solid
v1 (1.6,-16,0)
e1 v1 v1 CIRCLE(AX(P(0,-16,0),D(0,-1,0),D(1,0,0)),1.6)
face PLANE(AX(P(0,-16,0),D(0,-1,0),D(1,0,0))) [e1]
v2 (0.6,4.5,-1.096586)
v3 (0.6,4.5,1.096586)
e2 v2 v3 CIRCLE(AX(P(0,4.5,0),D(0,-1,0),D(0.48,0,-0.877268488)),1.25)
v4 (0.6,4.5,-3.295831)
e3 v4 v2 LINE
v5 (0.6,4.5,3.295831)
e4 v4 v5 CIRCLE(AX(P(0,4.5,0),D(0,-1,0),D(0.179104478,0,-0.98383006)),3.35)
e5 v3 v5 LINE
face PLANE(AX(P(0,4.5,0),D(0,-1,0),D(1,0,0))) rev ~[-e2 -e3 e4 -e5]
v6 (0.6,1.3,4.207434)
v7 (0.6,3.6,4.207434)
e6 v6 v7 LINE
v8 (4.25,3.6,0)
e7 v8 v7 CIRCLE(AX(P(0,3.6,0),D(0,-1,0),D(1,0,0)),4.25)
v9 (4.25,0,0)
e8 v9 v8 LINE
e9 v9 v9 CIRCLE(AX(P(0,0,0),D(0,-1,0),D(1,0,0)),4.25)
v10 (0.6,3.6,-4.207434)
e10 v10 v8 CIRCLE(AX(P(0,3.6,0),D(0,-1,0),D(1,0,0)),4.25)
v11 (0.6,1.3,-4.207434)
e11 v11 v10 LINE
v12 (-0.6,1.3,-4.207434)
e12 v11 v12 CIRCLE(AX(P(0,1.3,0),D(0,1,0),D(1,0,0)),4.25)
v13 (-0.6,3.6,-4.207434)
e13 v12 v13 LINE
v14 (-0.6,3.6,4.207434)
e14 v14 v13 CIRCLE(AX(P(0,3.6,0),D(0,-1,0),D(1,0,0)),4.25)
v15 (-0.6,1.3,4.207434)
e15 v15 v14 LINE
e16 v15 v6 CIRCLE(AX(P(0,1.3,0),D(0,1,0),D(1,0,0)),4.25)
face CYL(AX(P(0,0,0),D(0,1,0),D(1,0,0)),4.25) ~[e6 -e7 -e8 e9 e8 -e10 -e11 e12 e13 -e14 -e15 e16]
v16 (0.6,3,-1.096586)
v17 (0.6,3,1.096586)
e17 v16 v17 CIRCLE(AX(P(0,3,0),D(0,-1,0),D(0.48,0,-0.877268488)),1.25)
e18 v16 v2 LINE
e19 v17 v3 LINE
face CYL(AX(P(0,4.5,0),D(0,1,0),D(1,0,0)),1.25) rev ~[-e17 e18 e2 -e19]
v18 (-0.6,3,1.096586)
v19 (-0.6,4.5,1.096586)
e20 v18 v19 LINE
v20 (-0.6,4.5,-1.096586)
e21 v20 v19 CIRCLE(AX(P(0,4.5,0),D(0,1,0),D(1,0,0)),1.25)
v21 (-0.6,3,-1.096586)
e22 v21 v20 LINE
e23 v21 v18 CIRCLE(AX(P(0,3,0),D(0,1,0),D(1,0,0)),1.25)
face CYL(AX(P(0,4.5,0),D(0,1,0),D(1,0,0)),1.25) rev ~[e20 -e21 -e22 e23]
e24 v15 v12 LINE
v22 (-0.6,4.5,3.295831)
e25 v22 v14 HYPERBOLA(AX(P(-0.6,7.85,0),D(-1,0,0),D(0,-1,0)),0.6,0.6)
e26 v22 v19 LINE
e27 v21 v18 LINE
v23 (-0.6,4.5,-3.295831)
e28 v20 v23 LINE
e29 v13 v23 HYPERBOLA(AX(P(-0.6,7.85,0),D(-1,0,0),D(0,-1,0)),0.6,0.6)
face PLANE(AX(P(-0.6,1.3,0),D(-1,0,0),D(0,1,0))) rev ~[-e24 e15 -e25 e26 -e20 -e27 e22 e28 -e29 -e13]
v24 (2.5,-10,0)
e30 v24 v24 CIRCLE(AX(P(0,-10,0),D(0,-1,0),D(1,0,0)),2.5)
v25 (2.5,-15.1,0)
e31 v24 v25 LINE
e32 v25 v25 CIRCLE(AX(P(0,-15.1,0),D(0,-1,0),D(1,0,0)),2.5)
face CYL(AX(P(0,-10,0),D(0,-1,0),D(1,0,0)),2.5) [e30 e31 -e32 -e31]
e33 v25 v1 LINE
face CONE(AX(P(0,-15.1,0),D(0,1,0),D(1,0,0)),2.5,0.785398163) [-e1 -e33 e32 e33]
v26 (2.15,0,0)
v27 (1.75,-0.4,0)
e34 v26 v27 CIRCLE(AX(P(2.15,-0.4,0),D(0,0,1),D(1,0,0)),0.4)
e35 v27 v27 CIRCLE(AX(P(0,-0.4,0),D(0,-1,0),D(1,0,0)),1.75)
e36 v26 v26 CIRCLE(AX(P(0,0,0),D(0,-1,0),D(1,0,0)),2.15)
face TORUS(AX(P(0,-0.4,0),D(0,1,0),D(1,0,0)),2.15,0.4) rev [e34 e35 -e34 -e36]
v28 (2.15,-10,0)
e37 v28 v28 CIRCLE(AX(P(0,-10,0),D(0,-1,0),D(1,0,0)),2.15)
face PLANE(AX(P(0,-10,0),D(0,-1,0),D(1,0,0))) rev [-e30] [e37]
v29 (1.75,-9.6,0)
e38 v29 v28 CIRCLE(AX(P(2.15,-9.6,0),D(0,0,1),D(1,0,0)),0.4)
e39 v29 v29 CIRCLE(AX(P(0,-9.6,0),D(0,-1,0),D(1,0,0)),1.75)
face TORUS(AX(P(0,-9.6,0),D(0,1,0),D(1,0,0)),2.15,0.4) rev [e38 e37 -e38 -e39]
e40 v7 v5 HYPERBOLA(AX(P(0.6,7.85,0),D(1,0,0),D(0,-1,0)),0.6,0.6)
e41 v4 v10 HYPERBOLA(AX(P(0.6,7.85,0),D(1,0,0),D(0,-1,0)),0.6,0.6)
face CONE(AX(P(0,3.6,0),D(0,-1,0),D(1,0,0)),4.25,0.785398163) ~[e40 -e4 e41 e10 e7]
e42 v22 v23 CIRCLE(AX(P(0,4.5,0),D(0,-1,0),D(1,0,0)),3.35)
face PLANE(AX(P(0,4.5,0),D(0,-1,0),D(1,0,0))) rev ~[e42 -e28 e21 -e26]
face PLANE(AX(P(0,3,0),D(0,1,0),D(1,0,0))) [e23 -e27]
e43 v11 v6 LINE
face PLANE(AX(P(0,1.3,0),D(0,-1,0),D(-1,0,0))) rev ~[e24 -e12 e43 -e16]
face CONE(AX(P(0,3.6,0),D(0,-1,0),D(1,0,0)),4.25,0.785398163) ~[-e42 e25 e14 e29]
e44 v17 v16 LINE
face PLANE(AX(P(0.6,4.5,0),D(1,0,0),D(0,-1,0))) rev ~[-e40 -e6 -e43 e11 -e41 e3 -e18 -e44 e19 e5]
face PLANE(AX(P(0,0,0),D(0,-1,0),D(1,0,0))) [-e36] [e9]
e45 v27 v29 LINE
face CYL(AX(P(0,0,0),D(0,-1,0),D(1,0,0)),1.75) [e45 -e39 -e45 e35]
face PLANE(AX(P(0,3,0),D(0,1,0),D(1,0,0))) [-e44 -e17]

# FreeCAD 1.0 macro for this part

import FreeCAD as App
import Part
import Sketcher
from FreeCAD import Vector


def edges_at(feature, points):
    """Names of the edges that pass closest to the given points."""
    edges = feature.Shape.Edges
    near = lambda p: min(range(len(edges)), key=lambda i: edges[i].distToShape(Part.Vertex(*p))[0])
    return sorted({f"Edge{near(p) + 1}" for p in points})


def add_polygon(sketch, points):
    """Adds a closed chain of lines whose ends are joined by coincident constraints."""
    first, n = sketch.GeometryCount, len(points)
    for a, b in zip(points, points[1:] + points[:1]):
        sketch.addGeometry(Part.LineSegment(App.Vector(*a, 0), App.Vector(*b, 0)), False)
    for i in range(n):
        sketch.addConstraint(Sketcher.Constraint("Coincident", first + i, 2, first + (i + 1) % n, 1))

doc = App.newDocument("Part")
body = doc.addObject("PartDesign::Body", "Body")

# Sketch on XY plane
sketch1 = body.newObject("Sketcher::SketchObject", "Sketch")
sketch1.AttachmentSupport = (doc.getObject("XY_Plane"), [""])
sketch1.MapMode = "FlatFace"
add_polygon(sketch1, [(1.8, 0), (4.2, 0), (4.2, 4.5), (0, 4.5), (0, -16), (2.5, -16), (2.5, -10), (1.8, -10)])  # lines 0-7
sketch1.addConstraint(Sketcher.Constraint("Horizontal", 0))
sketch1.addConstraint(Sketcher.Constraint("Vertical", 1))
sketch1.addConstraint(Sketcher.Constraint("Horizontal", 2))
sketch1.addConstraint(Sketcher.Constraint("Vertical", 3))
sketch1.addConstraint(Sketcher.Constraint("Horizontal", 4))
sketch1.addConstraint(Sketcher.Constraint("Vertical", 5))
sketch1.addConstraint(Sketcher.Constraint("Horizontal", 6))
sketch1.addConstraint(Sketcher.Constraint("Vertical", 7))
sketch1.addConstraint(Sketcher.Constraint("PointOnObject", 0, 2, -1))
sketch1.addConstraint(Sketcher.Constraint("PointOnObject", 2, 2, -2))
sketch1.addConstraint(Sketcher.Constraint("Equal", 0, 4))
sketch1.addConstraint(Sketcher.Constraint("DistanceY", 5, 1, 5, 2, 6.0))
sketch1.addConstraint(Sketcher.Constraint("DistanceY", 1, 1, 1, 2, 4.5))
sketch1.addConstraint(Sketcher.Constraint("DistanceY", 3, 2, -1, 1, 16.0))
sketch1.addConstraint(Sketcher.Constraint("DistanceX", 0, 1, 0, 2, 2.5))
sketch1.addConstraint(Sketcher.Constraint("DistanceX", 2, 2, 2, 1, 4.25))
revolution = body.newObject("PartDesign::Revolution", "Revolution")
revolution.Profile = sketch1
revolution.ReferenceAxis = (sketch1, ["V_Axis"])
revolution.Angle = 360

# Sketch on XZ plane
sketch2 = body.newObject("Sketcher::SketchObject", "Sketch001")
sketch2.AttachmentSupport = (doc.getObject("XZ_Plane"), [""])
sketch2.MapMode = "FlatFace"
sketch2.AttachmentOffset = App.Placement(Vector(0, 0, -4.5), App.Rotation())
sketch2.addGeometry(Part.Circle(Vector(0, 0, 0), Vector(0, 0, 1), 1.2), False)
sketch2.addConstraint(Sketcher.Constraint("Coincident", 0, 3, -1, 1))
sketch2.addConstraint(Sketcher.Constraint("Diameter", 0, 2.5))
pocket1 = body.newObject("PartDesign::Pocket", "Pocket")
pocket1.Profile = sketch2
pocket1.Length = 1.5
pocket1.Reversed = True
doc.recompute()

chamfer = body.newObject("PartDesign::Chamfer", "Chamfer")
chamfer.Base = (pocket1, edges_at(pocket1, [(-4.25, 4.5, 0)]))
chamfer.Size = 0.9

# Sketch on XY plane
sketch3 = body.newObject("Sketcher::SketchObject", "Sketch002")
sketch3.AttachmentSupport = (doc.getObject("XY_Plane"), [""])
sketch3.MapMode = "FlatFace"
add_polygon(sketch3, [(-0.6, 1.3), (0.6, 1.3), (0.6, 4.5), (-0.6, 4.5)])  # lines 0-3
sketch3.addConstraint(Sketcher.Constraint("Horizontal", 0))
sketch3.addConstraint(Sketcher.Constraint("Vertical", 1))
sketch3.addConstraint(Sketcher.Constraint("Horizontal", 2))
sketch3.addConstraint(Sketcher.Constraint("Vertical", 3))
sketch3.addConstraint(Sketcher.Constraint("DistanceX", 0, 1, 0, 2, 1.2))
sketch3.addConstraint(Sketcher.Constraint("DistanceY", -1, 1, 0, 2, 1.3))
sketch3.addConstraint(Sketcher.Constraint("DistanceY", 1, 1, 1, 2, 3.2))
sketch3.addConstraint(Sketcher.Constraint("DistanceX", -1, 1, 0, 2, 0.6))
pocket2 = body.newObject("PartDesign::Pocket", "Pocket001")
pocket2.Profile = sketch3
pocket2.Type = "ThroughAll"
pocket2.Midplane = True
doc.recompute()

fillet = body.newObject("PartDesign::Fillet", "Fillet")
fillet.Base = (pocket2, edges_at(pocket2, [(-1.75, 0, 0), (-1.75, -10, 0)]))
fillet.Radius = 0.4
doc.recompute()

chamfer2 = body.newObject("PartDesign::Chamfer", "Chamfer001")
chamfer2.Base = (fillet, edges_at(fillet, [(-2.5, -16, 0)]))
chamfer2.Size = 0.9

doc.recompute()
